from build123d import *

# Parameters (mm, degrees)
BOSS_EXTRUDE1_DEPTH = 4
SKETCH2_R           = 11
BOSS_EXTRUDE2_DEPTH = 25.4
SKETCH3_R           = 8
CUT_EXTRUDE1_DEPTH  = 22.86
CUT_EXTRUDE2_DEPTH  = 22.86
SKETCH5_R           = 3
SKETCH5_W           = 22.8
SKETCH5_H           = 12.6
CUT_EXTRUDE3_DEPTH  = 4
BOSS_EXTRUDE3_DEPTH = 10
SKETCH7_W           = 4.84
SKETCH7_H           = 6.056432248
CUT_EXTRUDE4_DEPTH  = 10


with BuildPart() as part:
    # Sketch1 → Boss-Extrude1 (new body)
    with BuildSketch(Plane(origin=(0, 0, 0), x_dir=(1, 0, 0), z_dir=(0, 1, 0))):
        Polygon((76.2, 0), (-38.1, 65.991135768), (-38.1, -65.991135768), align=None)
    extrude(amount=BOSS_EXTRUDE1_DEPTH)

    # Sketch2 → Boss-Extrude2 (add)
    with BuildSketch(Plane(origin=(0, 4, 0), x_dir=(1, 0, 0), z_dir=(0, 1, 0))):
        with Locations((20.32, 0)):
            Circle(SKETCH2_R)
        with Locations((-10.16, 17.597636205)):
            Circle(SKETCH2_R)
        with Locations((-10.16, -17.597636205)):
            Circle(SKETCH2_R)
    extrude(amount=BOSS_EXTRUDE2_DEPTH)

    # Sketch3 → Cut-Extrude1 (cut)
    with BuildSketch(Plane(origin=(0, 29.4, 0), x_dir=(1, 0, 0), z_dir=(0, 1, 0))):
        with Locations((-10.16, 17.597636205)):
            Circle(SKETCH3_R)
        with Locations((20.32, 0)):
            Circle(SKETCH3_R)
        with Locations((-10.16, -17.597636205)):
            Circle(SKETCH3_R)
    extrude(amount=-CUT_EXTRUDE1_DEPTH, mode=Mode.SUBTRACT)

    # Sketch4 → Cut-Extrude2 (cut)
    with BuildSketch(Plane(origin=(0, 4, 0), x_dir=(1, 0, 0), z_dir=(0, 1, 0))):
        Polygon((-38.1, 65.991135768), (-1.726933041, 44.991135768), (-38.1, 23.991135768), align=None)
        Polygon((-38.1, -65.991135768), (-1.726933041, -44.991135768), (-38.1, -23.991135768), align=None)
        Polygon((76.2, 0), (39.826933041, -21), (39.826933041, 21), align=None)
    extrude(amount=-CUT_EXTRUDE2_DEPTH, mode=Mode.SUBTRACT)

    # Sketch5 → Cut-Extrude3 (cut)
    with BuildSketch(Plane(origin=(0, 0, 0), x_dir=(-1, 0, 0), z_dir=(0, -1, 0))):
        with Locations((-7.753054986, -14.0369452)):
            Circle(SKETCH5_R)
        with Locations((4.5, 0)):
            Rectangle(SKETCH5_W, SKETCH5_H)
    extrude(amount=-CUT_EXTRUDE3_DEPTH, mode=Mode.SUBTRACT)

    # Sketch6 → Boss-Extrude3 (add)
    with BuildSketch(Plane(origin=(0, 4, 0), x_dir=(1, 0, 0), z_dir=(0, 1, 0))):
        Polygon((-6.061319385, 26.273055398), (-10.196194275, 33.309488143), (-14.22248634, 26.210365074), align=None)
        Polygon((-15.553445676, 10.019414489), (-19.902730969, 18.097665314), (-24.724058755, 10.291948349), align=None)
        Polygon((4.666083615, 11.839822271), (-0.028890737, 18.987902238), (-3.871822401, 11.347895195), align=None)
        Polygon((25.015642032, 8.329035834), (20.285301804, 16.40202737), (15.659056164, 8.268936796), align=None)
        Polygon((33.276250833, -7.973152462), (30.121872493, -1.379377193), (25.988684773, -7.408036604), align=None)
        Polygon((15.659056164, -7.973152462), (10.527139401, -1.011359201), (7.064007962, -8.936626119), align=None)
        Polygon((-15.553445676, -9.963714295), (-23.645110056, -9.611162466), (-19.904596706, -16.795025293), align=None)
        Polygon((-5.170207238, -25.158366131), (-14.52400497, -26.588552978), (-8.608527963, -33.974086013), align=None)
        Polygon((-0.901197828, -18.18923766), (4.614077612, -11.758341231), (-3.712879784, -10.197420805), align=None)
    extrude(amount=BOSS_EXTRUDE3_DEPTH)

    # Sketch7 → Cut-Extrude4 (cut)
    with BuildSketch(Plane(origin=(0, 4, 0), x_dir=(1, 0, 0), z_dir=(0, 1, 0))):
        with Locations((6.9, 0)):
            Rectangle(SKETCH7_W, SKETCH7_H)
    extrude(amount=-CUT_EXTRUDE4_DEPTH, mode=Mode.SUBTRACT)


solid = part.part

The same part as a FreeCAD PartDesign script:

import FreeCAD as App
import Part
import Sketcher
Q = App.Units.Quantity

doc = App.newDocument("Part")
body = doc.addObject("PartDesign::Body", "Body")

# Sketch on XZ plane
sketch1 = doc.addObject("Sketcher::SketchObject", "Sketch")
body.addObject(sketch1)
sketch1.AttachmentSupport = (doc.XZ_Plane, [""])
sketch1.MapMode = "FlatFace"
sketch1.addGeometry([
    Part.LineSegment(App.Vector(76.2, 0, 0), App.Vector(-38.1, -65.991136, 0)),
    Part.LineSegment(App.Vector(-38.1, -65.991136, 0), App.Vector(-38.1, 65.991136, 0)),
    Part.LineSegment(App.Vector(-38.1, 65.991136, 0), App.Vector(76.2, 0, 0)),
], False)
sketch1.addConstraint([
    Sketcher.Constraint("Coincident", 0, 2, 1, 1),
    Sketcher.Constraint("Coincident", 1, 2, 2, 1),
    Sketcher.Constraint("Coincident", 2, 2, 0, 1),
    Sketcher.Constraint("Vertical", 1),
    Sketcher.Constraint("PointOnObject", 2, 2, -1),
    Sketcher.Constraint("Equal", 0, 2),
    Sketcher.Constraint("Angle", 0, Q("-150 deg")),
    Sketcher.Constraint("DistanceX", 0, 2, -1, 1, Q("38.1 mm")),
    Sketcher.Constraint("DistanceX", -1, 1, 2, 2, Q("76.2 mm")),
])
pad1 = doc.addObject("PartDesign::Pad", "Pad")
body.addObject(pad1)
pad1.Profile = sketch1
pad1.Length = 4
pad1.Reversed = True

# Sketch on XZ plane
sketch2 = doc.addObject("Sketcher::SketchObject", "Sketch001")
body.addObject(sketch2)
sketch2.AttachmentSupport = (doc.XZ_Plane, [""])
sketch2.MapMode = "FlatFace"
sketch2.AttachmentOffset = App.Placement(App.Vector(0, 0, -4), App.Rotation())
sketch2.addGeometry([
    Part.Circle(App.Vector(20.32, 0, 0), App.Vector(0, 0, 1), 11),
    Part.Circle(App.Vector(-10.16, -17.597636, 0), App.Vector(0, 0, 1), 11),
    Part.Circle(App.Vector(-10.16, 17.597636, 0), App.Vector(0, 0, 1), 11),
], False)
sketch2.addConstraint([
    Sketcher.Constraint("Equal", 0, 1),
    Sketcher.Constraint("Equal", 1, 2),
    Sketcher.Constraint("Symmetric", 1, 3, 2, 3, -1),
    Sketcher.Constraint("PointOnObject", 0, 3, -1),
    Sketcher.Constraint("Diameter", 0, Q("22 mm")),
    Sketcher.Constraint("DistanceX", -1, 1, 0, 3, Q("20.32 mm")),
    Sketcher.Constraint("DistanceX", 1, 3, -1, 1, Q("10.16 mm")),
    Sketcher.Constraint("DistanceY", 1, 3, -1, 1, Q("17.597636 mm")),
])
pad2 = doc.addObject("PartDesign::Pad", "Pad001")
body.addObject(pad2)
pad2.Profile = sketch2
pad2.Length = 25.4
pad2.Reversed = True

# Sketch on XZ plane
sketch3 = doc.addObject("Sketcher::SketchObject", "Sketch002")
body.addObject(sketch3)
sketch3.AttachmentSupport = (doc.XZ_Plane, [""])
sketch3.MapMode = "FlatFace"
sketch3.AttachmentOffset = App.Placement(App.Vector(0, 0, -29.4), App.Rotation())
sketch3.addGeometry([
    Part.Circle(App.Vector(-10.16, -17.597636, 0), App.Vector(0, 0, 1), 8),
    Part.Circle(App.Vector(20.32, 0, 0), App.Vector(0, 0, 1), 8),
    Part.Circle(App.Vector(-10.16, 17.597636, 0), App.Vector(0, 0, 1), 8),
], False)
sketch3.addConstraint([
    Sketcher.Constraint("Equal", 0, 1),
    Sketcher.Constraint("Equal", 1, 2),
    Sketcher.Constraint("Symmetric", 0, 3, 2, 3, -1),
    Sketcher.Constraint("PointOnObject", 1, 3, -1),
    Sketcher.Constraint("Diameter", 0, Q("16 mm")),
    Sketcher.Constraint("DistanceX", 0, 3, -1, 1, Q("10.16 mm")),
    Sketcher.Constraint("DistanceX", -1, 1, 1, 3, Q("20.32 mm")),
    Sketcher.Constraint("DistanceY", 0, 3, -1, 1, Q("17.597636 mm")),
])
pocket1 = doc.addObject("PartDesign::Pocket", "Pocket")
body.addObject(pocket1)
pocket1.Profile = sketch3
pocket1.Length = 22.86
pocket1.Reversed = True

# Sketch on XZ plane
sketch4 = doc.addObject("Sketcher::SketchObject", "Sketch003")
body.addObject(sketch4)
sketch4.AttachmentSupport = (doc.XZ_Plane, [""])
sketch4.MapMode = "FlatFace"
sketch4.AttachmentOffset = App.Placement(App.Vector(0, 0, -4), App.Rotation())
sketch4.addGeometry([
    Part.LineSegment(App.Vector(-1.726933, -44.991136, 0), App.Vector(-38.1, -65.991136, 0)),  # 0
    Part.LineSegment(App.Vector(-38.1, -65.991136, 0), App.Vector(-38.1, -23.991136, 0)),  # 1
    Part.LineSegment(App.Vector(-38.1, -23.991136, 0), App.Vector(-1.726933, -44.991136, 0)),  # 2
    Part.LineSegment(App.Vector(-38.1, 65.991136, 0), App.Vector(-1.726933, 44.991136, 0)),  # 3
    Part.LineSegment(App.Vector(-1.726933, 44.991136, 0), App.Vector(-38.1, 23.991136, 0)),  # 4
    Part.LineSegment(App.Vector(-38.1, 23.991136, 0), App.Vector(-38.1, 65.991136, 0)),  # 5
    Part.LineSegment(App.Vector(39.826933, 21, 0), App.Vector(76.2, 0, 0)),  # 6
    Part.LineSegment(App.Vector(76.2, 0, 0), App.Vector(39.826933, -21, 0)),  # 7
    Part.LineSegment(App.Vector(39.826933, -21, 0), App.Vector(39.826933, 21, 0)),  # 8
], False)
sketch4.addConstraint([
    Sketcher.Constraint("Coincident", 0, 2, 1, 1),
    Sketcher.Constraint("Coincident", 1, 2, 2, 1),
    Sketcher.Constraint("Coincident", 2, 2, 0, 1),
    Sketcher.Constraint("Coincident", 3, 2, 4, 1),
    Sketcher.Constraint("Coincident", 4, 2, 5, 1),
    Sketcher.Constraint("Coincident", 5, 2, 3, 1),
    Sketcher.Constraint("Coincident", 6, 2, 7, 1),
    Sketcher.Constraint("Coincident", 7, 2, 8, 1),
    Sketcher.Constraint("Coincident", 8, 2, 6, 1),
    Sketcher.Constraint("Vertical", 1),
    Sketcher.Constraint("Vertical", 5),
    Sketcher.Constraint("Vertical", 8),
    Sketcher.Constraint("Symmetric", 2, 2, 3, 2, -1),
    Sketcher.Constraint("Symmetric", 1, 2, 4, 2, -1),
    Sketcher.Constraint("PointOnObject", 6, 2, -1),
    Sketcher.Constraint("Parallel", 2, 3),
    Sketcher.Constraint("Parallel", 0, 4),
    Sketcher.Constraint("Parallel", 3, 6),
    Sketcher.Constraint("Parallel", 4, 7),
    Sketcher.Constraint("Equal", 5, 8),
    Sketcher.Constraint("DistanceY", 1, 1, 1, 2, Q("42 mm")),
    Sketcher.Constraint("Angle", 0, Q("-150 deg")),
    Sketcher.Constraint("DistanceX", 0, 2, -1, 1, Q("38.1 mm")),
    Sketcher.Constraint("DistanceX", -1, 1, 6, 2, Q("76.2 mm")),
    Sketcher.Constraint("DistanceY", 1, 2, 3, 2, Q("68.982272 mm")),
])
pocket2 = doc.addObject("PartDesign::Pocket", "Pocket001")
body.addObject(pocket2)
pocket2.Profile = sketch4
pocket2.Length = 22.86
pocket2.Reversed = True

# Sketch on XZ plane
sketch5 = doc.addObject("Sketcher::SketchObject", "Sketch004")
body.addObject(sketch5)
sketch5.AttachmentSupport = (doc.XZ_Plane, [""])
sketch5.MapMode = "FlatFace"
sketch5.addGeometry([
    Part.Circle(App.Vector(7.753055, 14.036945, 0), App.Vector(0, 0, 1), 3),  # 0
    Part.LineSegment(App.Vector(6.9, -6.3, 0), App.Vector(6.9, 6.3, 0)),  # 1
    Part.LineSegment(App.Vector(6.9, 6.3, 0), App.Vector(-15.9, 6.3, 0)),  # 2
    Part.LineSegment(App.Vector(-15.9, 6.3, 0), App.Vector(-15.9, -6.3, 0)),  # 3
    Part.LineSegment(App.Vector(-15.9, -6.3, 0), App.Vector(6.9, -6.3, 0)),  # 4
], False)
sketch5.addConstraint([
    Sketcher.Constraint("Coincident", 1, 2, 2, 1),
    Sketcher.Constraint("Coincident", 2, 2, 3, 1),
    Sketcher.Constraint("Coincident", 3, 2, 4, 1),
    Sketcher.Constraint("Coincident", 4, 2, 1, 1),
    Sketcher.Constraint("Vertical", 1),
    Sketcher.Constraint("Horizontal", 2),
    Sketcher.Constraint("Vertical", 3),
    Sketcher.Constraint("Horizontal", 4),
    Sketcher.Constraint("Diameter", 0, Q("6 mm")),
    Sketcher.Constraint("DistanceX", 2, 2, 2, 1, Q("22.8 mm")),
    Sketcher.Constraint("DistanceY", 1, 1, 1, 2, Q("12.6 mm")),
    Sketcher.Constraint("DistanceX", -1, 1, 1, 2, Q("6.9 mm")),
    Sketcher.Constraint("DistanceY", -1, 1, 1, 2, Q("6.3 mm")),
    Sketcher.Constraint("DistanceX", -1, 1, 0, 3, Q("7.753055 mm")),
    Sketcher.Constraint("DistanceY", -1, 1, 0, 3, Q("14.036945 mm")),
])
pocket3 = doc.addObject("PartDesign::Pocket", "Pocket002")
body.addObject(pocket3)
pocket3.Profile = sketch5
pocket3.Length = 4

# Sketch on XZ plane
sketch6 = doc.addObject("Sketcher::SketchObject", "Sketch005")
body.addObject(sketch6)
sketch6.AttachmentSupport = (doc.XZ_Plane, [""])
sketch6.MapMode = "FlatFace"
sketch6.AttachmentOffset = App.Placement(App.Vector(0, 0, -4), App.Rotation())
sketch6.addGeometry([
    Part.LineSegment(App.Vector(-6.061319, -26.273055, 0), App.Vector(-10.196194, -33.309488, 0)),  # 0
    Part.LineSegment(App.Vector(-10.196194, -33.309488, 0), App.Vector(-14.222486, -26.210365, 0)),  # 1
    Part.LineSegment(App.Vector(-14.222486, -26.210365, 0), App.Vector(-6.061319, -26.273055, 0)),  # 2
    Part.LineSegment(App.Vector(-15.553446, -10.019414, 0), App.Vector(-19.902731, -18.097665, 0)),  # 3
    Part.LineSegment(App.Vector(-19.902731, -18.097665, 0), App.Vector(-24.724059, -10.291948, 0)),  # 4
    Part.LineSegment(App.Vector(-24.724059, -10.291948, 0), App.Vector(-15.553446, -10.019414, 0)),  # 5
    Part.LineSegment(App.Vector(4.666084, -11.839822, 0), App.Vector(-0.028891, -18.987902, 0)),  # 6
    Part.LineSegment(App.Vector(-0.028891, -18.987902, 0), App.Vector(-3.871822, -11.347895, 0)),  # 7
    Part.LineSegment(App.Vector(-3.871822, -11.347895, 0), App.Vector(4.666084, -11.839822, 0)),  # 8
    Part.LineSegment(App.Vector(25.015642, -8.329036, 0), App.Vector(20.285302, -16.402027, 0)),  # 9
    Part.LineSegment(App.Vector(20.285302, -16.402027, 0), App.Vector(15.659056, -8.268937, 0)),  # 10
    Part.LineSegment(App.Vector(15.659056, -8.268937, 0), App.Vector(25.015642, -8.329036, 0)),  # 11
    Part.LineSegment(App.Vector(33.276251, 7.973152, 0), App.Vector(30.121872, 1.379377, 0)),  # 12
    Part.LineSegment(App.Vector(30.121872, 1.379377, 0), App.Vector(25.988685, 7.408037, 0)),  # 13
    Part.LineSegment(App.Vector(25.988685, 7.408037, 0), App.Vector(33.276251, 7.973152, 0)),  # 14
    Part.LineSegment(App.Vector(15.659056, 7.973152, 0), App.Vector(10.527139, 1.011359, 0)),  # 15
    Part.LineSegment(App.Vector(10.527139, 1.011359, 0), App.Vector(7.064008, 8.936626, 0)),  # 16
    Part.LineSegment(App.Vector(7.064008, 8.936626, 0), App.Vector(15.659056, 7.973152, 0)),  # 17
    Part.LineSegment(App.Vector(-15.553446, 9.963714, 0), App.Vector(-23.64511, 9.611162, 0)),  # 18
    Part.LineSegment(App.Vector(-23.64511, 9.611162, 0), App.Vector(-19.904597, 16.795025, 0)),  # 19
    Part.LineSegment(App.Vector(-19.904597, 16.795025, 0), App.Vector(-15.553446, 9.963714, 0)),  # 20
    Part.LineSegment(App.Vector(-5.170207, 25.158366, 0), App.Vector(-14.524005, 26.588553, 0)),  # 21
    Part.LineSegment(App.Vector(-14.524005, 26.588553, 0), App.Vector(-8.608528, 33.974086, 0)),  # 22
    Part.LineSegment(App.Vector(-8.608528, 33.974086, 0), App.Vector(-5.170207, 25.158366, 0)),  # 23
    Part.LineSegment(App.Vector(-0.901198, 18.189238, 0), App.Vector(4.614078, 11.758341, 0)),  # 24
    Part.LineSegment(App.Vector(4.614078, 11.758341, 0), App.Vector(-3.71288, 10.197421, 0)),  # 25
    Part.LineSegment(App.Vector(-3.71288, 10.197421, 0), App.Vector(-0.901198, 18.189238, 0)),  # 26
], False)
sketch6.addConstraint([
    Sketcher.Constraint("Coincident", 0, 2, 1, 1),
    Sketcher.Constraint("Coincident", 1, 2, 2, 1),
    Sketcher.Constraint("Coincident", 2, 2, 0, 1),
    Sketcher.Constraint("Coincident", 3, 2, 4, 1),
    Sketcher.Constraint("Coincident", 4, 2, 5, 1),
    Sketcher.Constraint("Coincident", 5, 2, 3, 1),
    Sketcher.Constraint("Coincident", 6, 2, 7, 1),
    Sketcher.Constraint("Coincident", 7, 2, 8, 1),
    Sketcher.Constraint("Coincident", 8, 2, 6, 1),
    Sketcher.Constraint("Coincident", 9, 2, 10, 1),
    Sketcher.Constraint("Coincident", 10, 2, 11, 1),
    Sketcher.Constraint("Coincident", 11, 2, 9, 1),
    Sketcher.Constraint("Coincident", 12, 2, 13, 1),
    Sketcher.Constraint("Coincident", 13, 2, 14, 1),
    Sketcher.Constraint("Coincident", 14, 2, 12, 1),
    Sketcher.Constraint("Coincident", 15, 2, 16, 1),
    Sketcher.Constraint("Coincident", 16, 2, 17, 1),
    Sketcher.Constraint("Coincident", 17, 2, 15, 1),
    Sketcher.Constraint("Coincident", 18, 2, 19, 1),
    Sketcher.Constraint("Coincident", 19, 2, 20, 1),
    Sketcher.Constraint("Coincident", 20, 2, 18, 1),
    Sketcher.Constraint("Coincident", 21, 2, 22, 1),
    Sketcher.Constraint("Coincident", 22, 2, 23, 1),
    Sketcher.Constraint("Coincident", 23, 2, 21, 1),
    Sketcher.Constraint("Coincident", 24, 2, 25, 1),
    Sketcher.Constraint("Coincident", 25, 2, 26, 1),
    Sketcher.Constraint("Coincident", 26, 2, 24, 1),
    Sketcher.Constraint("Horizontal", 14, 2, 17, 2),
    Sketcher.Constraint("Vertical", 10, 2, 17, 2),
    Sketcher.Constraint("Vertical", 5, 2, 20, 2),
    Sketcher.Constraint("Equal", 0, 1),
    Sketcher.Constraint("Equal", 1, 2),
    Sketcher.Constraint("Equal", 3, 4),
    Sketcher.Constraint("Equal", 4, 5),
    Sketcher.Constraint("Equal", 6, 7),
    Sketcher.Constraint("Equal", 7, 8),
    Sketcher.Constraint("Equal", 9, 10),
    Sketcher.Constraint("Equal", 10, 11),
    Sketcher.Constraint("Equal", 12, 13),
    Sketcher.Constraint("Equal", 13, 14),
    Sketcher.Constraint("Equal", 15, 16),
    Sketcher.Constraint("Equal", 16, 17),
    Sketcher.Constraint("Equal", 18, 19),
    Sketcher.Constraint("Equal", 19, 20),
    Sketcher.Constraint("Equal", 21, 22),
    Sketcher.Constraint("Equal", 22, 23),
    Sketcher.Constraint("Equal", 24, 25),
    Sketcher.Constraint("Equal", 25, 26),
    Sketcher.Constraint("DistanceX", -1, 1, 9, 2, Q("20.285302 mm")),
    Sketcher.Constraint("DistanceY", 1, 2, 3, 2, Q("8.1127 mm")),
    Sketcher.Constraint("DistanceY", 11, 2, 10, 2, Q("0.060099 mm")),
    Sketcher.Constraint("DistanceY", 8, 2, 12, 2, Q("13.219199 mm")),
    Sketcher.Constraint("DistanceX", 8, 2, 13, 2, Q("21.322601 mm")),
    Sketcher.Constraint("DistanceY", 16, 2, 19, 2, Q("7.858399 mm")),
    Sketcher.Constraint("DistanceY", 17, 2, 21, 2, Q("18.615401 mm")),
    Sketcher.Constraint("Distance", 3, Q("9.174662 mm")),
    Sketcher.Constraint("Distance", 9, Q("9.356779 mm")),
    Sketcher.Constraint("Distance", 15, Q("8.648881 mm")),
    Sketcher.Constraint("Distance", 18, Q("8.099341 mm")),
    Sketcher.Constraint("DistanceY", 0, 2, -1, 1, Q("33.309488 mm")),
    Sketcher.Constraint("DistanceX", 2, 2, -1, 1, Q("6.061319 mm")),
    Sketcher.Constraint("DistanceX", 3, 2, -1, 1, Q("19.902731 mm")),
    Sketcher.Constraint("DistanceX", 4, 2, -1, 1, Q("24.724059 mm")),
    Sketcher.Constraint("DistanceY", 4, 2, -1, 1, Q("10.291948 mm")),
    Sketcher.Constraint("DistanceX", 6, 2, -1, 1, Q("0.028891 mm")),
    Sketcher.Constraint("DistanceX", -1, 1, 14, 2, Q("33.276251 mm")),
    Sketcher.Constraint("DistanceX", -1, 1, 15, 2, Q("10.527139 mm")),
    Sketcher.Constraint("DistanceY", -1, 1, 15, 2, Q("1.011359 mm")),
    Sketcher.Constraint("DistanceX", 18, 2, -1, 1, Q("23.64511 mm")),
    Sketcher.Constraint("DistanceY", -1, 1, 24, 2, Q("11.758341 mm")),
    Sketcher.Constraint("DistanceX", 25, 2, -1, 1, Q("3.71288 mm")),
    Sketcher.Constraint("DistanceY", -1, 1, 25, 2, Q("10.197421 mm")),
    Sketcher.Constraint("DistanceY", 2, 2, 1, 2, Q("0.06269 mm")),
    Sketcher.Constraint("DistanceX", 7, 2, 6, 2, Q("3.842932 mm")),
    Sketcher.Constraint("DistanceY", 7, 2, 5, 2, Q("1.328481 mm")),
    Sketcher.Constraint("DistanceY", 6, 2, 8, 2, Q("7.14808 mm")),
    Sketcher.Constraint("DistanceY", 2, 2, 9, 2, Q("9.871028 mm")),
    Sketcher.Constraint("DistanceX", 19, 2, 21, 2, Q("5.380592 mm")),
    Sketcher.Constraint("DistanceX", 19, 2, 22, 2, Q("11.296069 mm")),
    Sketcher.Constraint("DistanceY", 19, 2, 22, 2, Q("17.179061 mm")),
    Sketcher.Constraint("DistanceX", 24, 2, 16, 2, Q("2.44993 mm")),
])
pad3 = doc.addObject("PartDesign::Pad", "Pad002")
body.addObject(pad3)
pad3.Profile = sketch6
pad3.Length = 10
pad3.Reversed = True

# Sketch on XZ plane
sketch7 = doc.addObject("Sketcher::SketchObject", "Sketch006")
body.addObject(sketch7)
sketch7.AttachmentSupport = (doc.XZ_Plane, [""])
sketch7.MapMode = "FlatFace"
sketch7.AttachmentOffset = App.Placement(App.Vector(0, 0, -4), App.Rotation())
sketch7.addGeometry([
    Part.LineSegment(App.Vector(4.48, -3.028216, 0), App.Vector(4.48, 3.028216, 0)),
    Part.LineSegment(App.Vector(4.48, 3.028216, 0), App.Vector(9.32, 3.028216, 0)),
    Part.LineSegment(App.Vector(9.32, 3.028216, 0), App.Vector(9.32, -3.028216, 0)),
    Part.LineSegment(App.Vector(9.32, -3.028216, 0), App.Vector(4.48, -3.028216, 0)),
], False)
sketch7.addConstraint([
    Sketcher.Constraint("Coincident", 0, 2, 1, 1),
    Sketcher.Constraint("Coincident", 1, 2, 2, 1),
    Sketcher.Constraint("Coincident", 2, 2, 3, 1),
    Sketcher.Constraint("Coincident", 3, 2, 0, 1),
    Sketcher.Constraint("Vertical", 0),
    Sketcher.Constraint("Horizontal", 1),
    Sketcher.Constraint("Vertical", 2),
    Sketcher.Constraint("Horizontal", 3),
    Sketcher.Constraint("DistanceX", 1, 1, 1, 2, Q("4.84 mm")),
    Sketcher.Constraint("DistanceX", -1, 1, 0, 2, Q("4.48 mm")),
    Sketcher.Constraint("DistanceY", 0, 1, 0, 2, Q("6.056432 mm")),
    Sketcher.Constraint("DistanceY", -1, 1, 0, 2, Q("3.028216 mm")),
])
pocket4 = doc.addObject("PartDesign::Pocket", "Pocket003")
body.addObject(pocket4)
pocket4.Profile = sketch7
pocket4.Length = 10
pocket4.Reversed = True

doc.recompute()
